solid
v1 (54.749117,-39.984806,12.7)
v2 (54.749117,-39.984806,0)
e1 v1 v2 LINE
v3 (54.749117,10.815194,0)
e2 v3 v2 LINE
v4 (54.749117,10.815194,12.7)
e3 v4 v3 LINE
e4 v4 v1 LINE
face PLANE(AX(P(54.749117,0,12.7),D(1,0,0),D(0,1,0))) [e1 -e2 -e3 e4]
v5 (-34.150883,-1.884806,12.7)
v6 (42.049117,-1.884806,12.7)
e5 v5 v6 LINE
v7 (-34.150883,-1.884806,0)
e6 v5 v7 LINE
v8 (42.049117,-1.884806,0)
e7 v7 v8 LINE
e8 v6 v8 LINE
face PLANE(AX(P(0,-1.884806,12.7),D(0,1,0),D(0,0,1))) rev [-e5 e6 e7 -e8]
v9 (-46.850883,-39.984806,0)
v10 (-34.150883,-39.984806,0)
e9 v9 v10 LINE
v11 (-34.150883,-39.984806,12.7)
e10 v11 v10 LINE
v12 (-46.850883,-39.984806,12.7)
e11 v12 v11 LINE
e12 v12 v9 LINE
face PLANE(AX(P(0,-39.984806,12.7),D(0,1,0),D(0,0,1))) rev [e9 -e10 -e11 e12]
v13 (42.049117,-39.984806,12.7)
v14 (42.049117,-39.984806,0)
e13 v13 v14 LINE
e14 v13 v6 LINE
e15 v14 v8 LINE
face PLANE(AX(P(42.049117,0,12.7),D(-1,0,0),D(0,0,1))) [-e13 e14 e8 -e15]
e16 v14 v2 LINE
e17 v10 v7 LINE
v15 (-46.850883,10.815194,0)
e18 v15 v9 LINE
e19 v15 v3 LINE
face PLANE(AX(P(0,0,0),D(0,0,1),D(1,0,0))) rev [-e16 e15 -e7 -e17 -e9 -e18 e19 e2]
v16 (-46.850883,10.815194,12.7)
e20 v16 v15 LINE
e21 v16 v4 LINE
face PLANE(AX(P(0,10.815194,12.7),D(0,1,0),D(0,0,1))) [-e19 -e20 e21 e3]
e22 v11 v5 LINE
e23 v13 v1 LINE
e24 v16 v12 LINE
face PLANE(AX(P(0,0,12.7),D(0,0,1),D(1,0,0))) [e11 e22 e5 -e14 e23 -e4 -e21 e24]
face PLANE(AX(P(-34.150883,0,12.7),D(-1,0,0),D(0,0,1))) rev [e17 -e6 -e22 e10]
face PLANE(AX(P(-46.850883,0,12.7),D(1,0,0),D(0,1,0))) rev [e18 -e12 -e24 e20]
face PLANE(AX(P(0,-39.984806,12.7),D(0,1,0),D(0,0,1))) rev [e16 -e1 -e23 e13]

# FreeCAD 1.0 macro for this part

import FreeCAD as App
import Part
import Sketcher

V = App.Vector
Q = App.Units.Quantity

doc = App.newDocument("Part")
body = doc.addObject("PartDesign::Body", "Body")

sketch1 = body.newObject("Sketcher::SketchObject", "Sketch")
sketch1.AttachmentSupport = (doc.getObject("XY_Plane"), [""])
sketch1.MapMode = "FlatFace"
sketch1.addGeometry([
    Part.LineSegment(V(55, 11, 0), V(-47, 11, 0)),
    Part.LineSegment(V(-47, 11, 0), V(-47, -40, 0)),
    Part.LineSegment(V(-47, -40, 0), V(-34, -40, 0)),
    Part.LineSegment(V(-34, -40, 0), V(-34, -2, 0)),
    Part.LineSegment(V(-34, -2, 0), V(42, -2, 0)),
    Part.LineSegment(V(42, -2, 0), V(42, -40, 0)),
    Part.LineSegment(V(42, -40, 0), V(55, -40, 0)),
    Part.LineSegment(V(55, -40, 0), V(55, 11, 0)),
], False)
sketch1.addConstraint([
    Sketcher.Constraint("Coincident", 0, 2, 1, 1),
    Sketcher.Constraint("Coincident", 1, 2, 2, 1),
    Sketcher.Constraint("Coincident", 2, 2, 3, 1),
    Sketcher.Constraint("Coincident", 3, 2, 4, 1),
    Sketcher.Constraint("Coincident", 4, 2, 5, 1),
    Sketcher.Constraint("Coincident", 5, 2, 6, 1),
    Sketcher.Constraint("Coincident", 6, 2, 7, 1),
    Sketcher.Constraint("Coincident", 7, 2, 0, 1),
    Sketcher.Constraint("Horizontal", 0),
    Sketcher.Constraint("Vertical", 1),
    Sketcher.Constraint("Horizontal", 2),
    Sketcher.Constraint("Vertical", 3),
    Sketcher.Constraint("Horizontal", 4),
    Sketcher.Constraint("Vertical", 5),
    Sketcher.Constraint("Horizontal", 6),
    Sketcher.Constraint("Vertical", 7),
    Sketcher.Constraint("Horizontal", 2, 2, 5, 2),
    Sketcher.Constraint("Equal", 2, 6),
    Sketcher.Constraint("DistanceX", 0, 2, 0, 1, Q("4 in")),
    Sketcher.Constraint("DistanceX", 4, 1, 4, 2, Q("3 in")),
    Sketcher.Constraint("DistanceY", 1, 2, 1, 1, Q("2 in")),
    Sketcher.Constraint("DistanceY", 3, 1, 3, 2, Q("1.5 in")),
    Sketcher.Constraint("DistanceX", 0, 2, -1, 1, Q("46.850883 mm")),
    Sketcher.Constraint("DistanceY", -1, 1, 0, 2, Q("10.815194 mm")),
])
pad1 = body.newObject("PartDesign::Pad", "Pad")
pad1.Profile = sketch1
pad1.Length = Q("0.5 in")

doc.recompute()
